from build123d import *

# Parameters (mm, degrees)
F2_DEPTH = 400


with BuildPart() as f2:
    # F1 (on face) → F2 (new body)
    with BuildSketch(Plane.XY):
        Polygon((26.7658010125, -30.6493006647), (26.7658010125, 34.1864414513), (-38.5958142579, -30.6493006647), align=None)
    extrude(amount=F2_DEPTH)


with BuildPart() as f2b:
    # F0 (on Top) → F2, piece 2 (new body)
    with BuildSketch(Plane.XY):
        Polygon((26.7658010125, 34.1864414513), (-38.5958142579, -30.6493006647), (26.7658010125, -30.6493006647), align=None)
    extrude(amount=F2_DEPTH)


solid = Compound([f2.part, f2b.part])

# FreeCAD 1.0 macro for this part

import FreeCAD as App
import Part
import Sketcher

V = App.Vector

doc = App.newDocument("Part")
body = doc.addObject("PartDesign::Body", "Body")

# Sketch on XY plane
sketch1 = doc.addObject("Sketcher::SketchObject", "Sketch")
body.addObject(sketch1)
sketch1.AttachmentSupport = (doc.XY_Plane, [""])
sketch1.MapMode = "FlatFace"
sketch1.addGeometry(Part.LineSegment(V(27, -31, 0), V(27, 34, 0)), False)
sketch1.addGeometry(Part.LineSegment(V(27, 34, 0), V(-39, -31, 0)), False)
sketch1.addGeometry(Part.LineSegment(V(-39, -31, 0), V(27, -31, 0)), False)
sketch1.addConstraint(Sketcher.Constraint("Coincident", 0, 2, 1, 1))
sketch1.addConstraint(Sketcher.Constraint("Coincident", 1, 2, 2, 1))
sketch1.addConstraint(Sketcher.Constraint("Coincident", 2, 2, 0, 1))
sketch1.addConstraint(Sketcher.Constraint("Vertical", 0))
sketch1.addConstraint(Sketcher.Constraint("Horizontal", 2))
sketch1.addConstraint(Sketcher.Constraint("DistanceX", -1, 1, 0, 2, 26.765801))
sketch1.addConstraint(Sketcher.Constraint("DistanceY", 1, 2, -1, 1, 30.649301))
sketch1.addConstraint(Sketcher.Constraint("DistanceX", 2, 1, 2, 2, 65.361615))
sketch1.addConstraint(Sketcher.Constraint("DistanceY", 0, 1, 0, 2, 64.835742))
pad1 = doc.addObject("PartDesign::Pad", "Pad")
body.addObject(pad1)
pad1.Profile = sketch1
pad1.Length = 400
body2 = doc.addObject("PartDesign::Body", "Body001")

# Sketch on XY plane
sketch2 = doc.addObject("Sketcher::SketchObject", "Sketch001")
body2.addObject(sketch2)
sketch2.AttachmentSupport = (doc.getObject("XY_Plane001"), [""])
sketch2.MapMode = "FlatFace"
sketch2.addGeometry(Part.LineSegment(V(27, 34, 0), V(-39, -31, 0)), False)
sketch2.addGeometry(Part.LineSegment(V(-39, -31, 0), V(27, -31, 0)), False)
sketch2.addGeometry(Part.LineSegment(V(27, -31, 0), V(27, 34, 0)), False)
sketch2.addConstraint(Sketcher.Constraint("Coincident", 0, 2, 1, 1))
sketch2.addConstraint(Sketcher.Constraint("Coincident", 1, 2, 2, 1))
sketch2.addConstraint(Sketcher.Constraint("Coincident", 2, 2, 0, 1))
sketch2.addConstraint(Sketcher.Constraint("Horizontal", 1))
sketch2.addConstraint(Sketcher.Constraint("Vertical", 2))
sketch2.addConstraint(Sketcher.Constraint("DistanceY", 0, 2, -1, 1, 30.649301))
sketch2.addConstraint(Sketcher.Constraint("DistanceX", -1, 1, 1, 2, 26.765801))
sketch2.addConstraint(Sketcher.Constraint("DistanceX", 1, 1, 1, 2, 65.361615))
sketch2.addConstraint(Sketcher.Constraint("DistanceY", 2, 1, 2, 2, 64.835742))
pad2 = doc.addObject("PartDesign::Pad", "Pad001")
body2.addObject(pad2)
pad2.Profile = sketch2
pad2.Length = 400

doc.recompute()
